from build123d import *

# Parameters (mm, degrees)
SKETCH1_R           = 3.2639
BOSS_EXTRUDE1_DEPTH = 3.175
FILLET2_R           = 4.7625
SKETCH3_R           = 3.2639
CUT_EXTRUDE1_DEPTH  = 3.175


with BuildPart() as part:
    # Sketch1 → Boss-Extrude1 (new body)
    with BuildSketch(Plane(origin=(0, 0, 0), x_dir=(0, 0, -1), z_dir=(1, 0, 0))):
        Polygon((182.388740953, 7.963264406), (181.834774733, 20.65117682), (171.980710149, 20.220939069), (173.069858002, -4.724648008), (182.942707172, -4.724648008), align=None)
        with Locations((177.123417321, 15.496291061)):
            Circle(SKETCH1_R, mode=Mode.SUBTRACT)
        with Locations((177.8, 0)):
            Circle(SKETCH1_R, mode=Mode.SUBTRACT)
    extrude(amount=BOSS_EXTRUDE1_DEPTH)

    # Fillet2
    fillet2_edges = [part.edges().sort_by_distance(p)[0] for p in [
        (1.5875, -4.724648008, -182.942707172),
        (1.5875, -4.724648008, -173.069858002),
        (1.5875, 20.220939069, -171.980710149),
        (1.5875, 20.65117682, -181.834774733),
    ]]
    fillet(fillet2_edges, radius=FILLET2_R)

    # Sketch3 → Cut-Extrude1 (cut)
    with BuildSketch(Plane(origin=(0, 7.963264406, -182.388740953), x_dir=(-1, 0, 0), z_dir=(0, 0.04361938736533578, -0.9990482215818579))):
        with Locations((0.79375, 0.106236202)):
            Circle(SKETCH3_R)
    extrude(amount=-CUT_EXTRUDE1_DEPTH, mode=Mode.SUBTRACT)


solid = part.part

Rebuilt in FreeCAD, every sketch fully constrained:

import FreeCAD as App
import Part
import Sketcher
Q = App.Units.Quantity


def edges_at(feature, points):
    """Names of the edges that pass closest to the given points."""
    edges = feature.Shape.Edges
    near = lambda p: min(range(len(edges)), key=lambda i: edges[i].distToShape(Part.Vertex(*p))[0])
    return sorted({f"Edge{near(p) + 1}" for p in points})


def add_polygon(sketch, points):
    """Adds a closed chain of lines whose ends are joined by coincident constraints."""
    first, n = sketch.GeometryCount, len(points)
    for a, b in zip(points, points[1:] + points[:1]):
        sketch.addGeometry(Part.LineSegment(App.Vector(*a, 0), App.Vector(*b, 0)), False)
    for i in range(n):
        sketch.addConstraint(Sketcher.Constraint("Coincident", first + i, 2, first + (i + 1) % n, 1))

doc = App.newDocument("Part")
body = doc.addObject("PartDesign::Body", "Body")

# Sketch on YZ plane
sketch1 = body.newObject("Sketcher::SketchObject", "Sketch")
sketch1.AttachmentSupport = (doc.getObject("YZ_Plane"), [""])
sketch1.MapMode = "FlatFace"
add_polygon(sketch1, [(8, -182.4), (20.7, -181.8), (20.2, -172), (-4.7, -173.1), (-4.7, -182.9)])  # lines 0-4
sketch1.addGeometry(Part.Circle(App.Vector(0, -177.8, 0), App.Vector(0, 0, 1), 3.3), False)  # 5
sketch1.addGeometry(Part.Circle(App.Vector(15.5, -177.1, 0), App.Vector(0, 0, 1), 3.3), False)  # 6
sketch1.addConstraint([
    Sketcher.Constraint("Vertical", 3),
    Sketcher.Constraint("Equal", 5, 6),
    Sketcher.Constraint("PointOnObject", 5, 3, -2),
    Sketcher.Constraint("Perpendicular", 0, 1),
    Sketcher.Constraint("Perpendicular", 1, 2),
    Sketcher.Constraint("Parallel", 2, 4),
    Sketcher.Constraint("Equal", 0, 4),
    Sketcher.Constraint("Diameter", 5, Q("0.257 in")),
    Sketcher.Constraint("DistanceY", 5, 3, -1, 1, Q("7 in")),
    Sketcher.Constraint("Distance", 0, Q("0.5 in")),
    Sketcher.Constraint("Angle", 0, Q("2.5 deg")),
    Sketcher.Constraint("DistanceX", -1, 1, 1, 2, Q("0.7961 in")),
    Sketcher.Constraint("DistanceX", 2, 2, 6, 3, Q("0.7961 in")),
    Sketcher.Constraint("DistanceY", 3, 2, 3, 1, 9.872849),
    Sketcher.Constraint("DistanceY", 1, 2, -1, 1, 171.98071),
    Sketcher.Constraint("DistanceY", 6, 3, 2, 2, 4.053559),
])
pad1 = body.newObject("PartDesign::Pad", "Pad")
pad1.Profile = sketch1
pad1.Length = Q("0.125 in")
doc.recompute()

fillet = body.newObject("PartDesign::Fillet", "Fillet")
fillet.Base = (pad1, edges_at(pad1, [
    (1.587, -4.725, -182.943),
    (1.587, -4.725, -173.07),
    (1.587, 20.221, -171.981),
    (1.587, 20.651, -181.835),
]))
fillet.Radius = Q("0.1875 in")

# Sketch on an angled plane
sketch2 = body.newObject("Sketcher::SketchObject", "Sketch001")
sketch2.Placement = App.Placement(App.Vector(0, 7.963264, -182.388741), App.Rotation(App.Vector(-1, 0, 0), App.Vector(0, 0.999048222, 0.043619387), App.Vector(0, 0.043619387, -0.999048222), "ZXY"))
sketch2.addGeometry(Part.Circle(App.Vector(0.8, 0.1, 0), App.Vector(0, 0, 1), 3.3), False)
sketch2.addConstraint([
    Sketcher.Constraint("Diameter", 0, Q("0.257 in")),
    Sketcher.Constraint("DistanceX", -1, 1, 0, 3, Q("0.03125 in")),
    Sketcher.Constraint("DistanceY", -1, 1, 0, 3, 0.106236),
])
pocket1 = body.newObject("PartDesign::Pocket", "Pocket")
pocket1.Profile = sketch2
pocket1.Length = Q("0.125 in")

doc.recompute()
